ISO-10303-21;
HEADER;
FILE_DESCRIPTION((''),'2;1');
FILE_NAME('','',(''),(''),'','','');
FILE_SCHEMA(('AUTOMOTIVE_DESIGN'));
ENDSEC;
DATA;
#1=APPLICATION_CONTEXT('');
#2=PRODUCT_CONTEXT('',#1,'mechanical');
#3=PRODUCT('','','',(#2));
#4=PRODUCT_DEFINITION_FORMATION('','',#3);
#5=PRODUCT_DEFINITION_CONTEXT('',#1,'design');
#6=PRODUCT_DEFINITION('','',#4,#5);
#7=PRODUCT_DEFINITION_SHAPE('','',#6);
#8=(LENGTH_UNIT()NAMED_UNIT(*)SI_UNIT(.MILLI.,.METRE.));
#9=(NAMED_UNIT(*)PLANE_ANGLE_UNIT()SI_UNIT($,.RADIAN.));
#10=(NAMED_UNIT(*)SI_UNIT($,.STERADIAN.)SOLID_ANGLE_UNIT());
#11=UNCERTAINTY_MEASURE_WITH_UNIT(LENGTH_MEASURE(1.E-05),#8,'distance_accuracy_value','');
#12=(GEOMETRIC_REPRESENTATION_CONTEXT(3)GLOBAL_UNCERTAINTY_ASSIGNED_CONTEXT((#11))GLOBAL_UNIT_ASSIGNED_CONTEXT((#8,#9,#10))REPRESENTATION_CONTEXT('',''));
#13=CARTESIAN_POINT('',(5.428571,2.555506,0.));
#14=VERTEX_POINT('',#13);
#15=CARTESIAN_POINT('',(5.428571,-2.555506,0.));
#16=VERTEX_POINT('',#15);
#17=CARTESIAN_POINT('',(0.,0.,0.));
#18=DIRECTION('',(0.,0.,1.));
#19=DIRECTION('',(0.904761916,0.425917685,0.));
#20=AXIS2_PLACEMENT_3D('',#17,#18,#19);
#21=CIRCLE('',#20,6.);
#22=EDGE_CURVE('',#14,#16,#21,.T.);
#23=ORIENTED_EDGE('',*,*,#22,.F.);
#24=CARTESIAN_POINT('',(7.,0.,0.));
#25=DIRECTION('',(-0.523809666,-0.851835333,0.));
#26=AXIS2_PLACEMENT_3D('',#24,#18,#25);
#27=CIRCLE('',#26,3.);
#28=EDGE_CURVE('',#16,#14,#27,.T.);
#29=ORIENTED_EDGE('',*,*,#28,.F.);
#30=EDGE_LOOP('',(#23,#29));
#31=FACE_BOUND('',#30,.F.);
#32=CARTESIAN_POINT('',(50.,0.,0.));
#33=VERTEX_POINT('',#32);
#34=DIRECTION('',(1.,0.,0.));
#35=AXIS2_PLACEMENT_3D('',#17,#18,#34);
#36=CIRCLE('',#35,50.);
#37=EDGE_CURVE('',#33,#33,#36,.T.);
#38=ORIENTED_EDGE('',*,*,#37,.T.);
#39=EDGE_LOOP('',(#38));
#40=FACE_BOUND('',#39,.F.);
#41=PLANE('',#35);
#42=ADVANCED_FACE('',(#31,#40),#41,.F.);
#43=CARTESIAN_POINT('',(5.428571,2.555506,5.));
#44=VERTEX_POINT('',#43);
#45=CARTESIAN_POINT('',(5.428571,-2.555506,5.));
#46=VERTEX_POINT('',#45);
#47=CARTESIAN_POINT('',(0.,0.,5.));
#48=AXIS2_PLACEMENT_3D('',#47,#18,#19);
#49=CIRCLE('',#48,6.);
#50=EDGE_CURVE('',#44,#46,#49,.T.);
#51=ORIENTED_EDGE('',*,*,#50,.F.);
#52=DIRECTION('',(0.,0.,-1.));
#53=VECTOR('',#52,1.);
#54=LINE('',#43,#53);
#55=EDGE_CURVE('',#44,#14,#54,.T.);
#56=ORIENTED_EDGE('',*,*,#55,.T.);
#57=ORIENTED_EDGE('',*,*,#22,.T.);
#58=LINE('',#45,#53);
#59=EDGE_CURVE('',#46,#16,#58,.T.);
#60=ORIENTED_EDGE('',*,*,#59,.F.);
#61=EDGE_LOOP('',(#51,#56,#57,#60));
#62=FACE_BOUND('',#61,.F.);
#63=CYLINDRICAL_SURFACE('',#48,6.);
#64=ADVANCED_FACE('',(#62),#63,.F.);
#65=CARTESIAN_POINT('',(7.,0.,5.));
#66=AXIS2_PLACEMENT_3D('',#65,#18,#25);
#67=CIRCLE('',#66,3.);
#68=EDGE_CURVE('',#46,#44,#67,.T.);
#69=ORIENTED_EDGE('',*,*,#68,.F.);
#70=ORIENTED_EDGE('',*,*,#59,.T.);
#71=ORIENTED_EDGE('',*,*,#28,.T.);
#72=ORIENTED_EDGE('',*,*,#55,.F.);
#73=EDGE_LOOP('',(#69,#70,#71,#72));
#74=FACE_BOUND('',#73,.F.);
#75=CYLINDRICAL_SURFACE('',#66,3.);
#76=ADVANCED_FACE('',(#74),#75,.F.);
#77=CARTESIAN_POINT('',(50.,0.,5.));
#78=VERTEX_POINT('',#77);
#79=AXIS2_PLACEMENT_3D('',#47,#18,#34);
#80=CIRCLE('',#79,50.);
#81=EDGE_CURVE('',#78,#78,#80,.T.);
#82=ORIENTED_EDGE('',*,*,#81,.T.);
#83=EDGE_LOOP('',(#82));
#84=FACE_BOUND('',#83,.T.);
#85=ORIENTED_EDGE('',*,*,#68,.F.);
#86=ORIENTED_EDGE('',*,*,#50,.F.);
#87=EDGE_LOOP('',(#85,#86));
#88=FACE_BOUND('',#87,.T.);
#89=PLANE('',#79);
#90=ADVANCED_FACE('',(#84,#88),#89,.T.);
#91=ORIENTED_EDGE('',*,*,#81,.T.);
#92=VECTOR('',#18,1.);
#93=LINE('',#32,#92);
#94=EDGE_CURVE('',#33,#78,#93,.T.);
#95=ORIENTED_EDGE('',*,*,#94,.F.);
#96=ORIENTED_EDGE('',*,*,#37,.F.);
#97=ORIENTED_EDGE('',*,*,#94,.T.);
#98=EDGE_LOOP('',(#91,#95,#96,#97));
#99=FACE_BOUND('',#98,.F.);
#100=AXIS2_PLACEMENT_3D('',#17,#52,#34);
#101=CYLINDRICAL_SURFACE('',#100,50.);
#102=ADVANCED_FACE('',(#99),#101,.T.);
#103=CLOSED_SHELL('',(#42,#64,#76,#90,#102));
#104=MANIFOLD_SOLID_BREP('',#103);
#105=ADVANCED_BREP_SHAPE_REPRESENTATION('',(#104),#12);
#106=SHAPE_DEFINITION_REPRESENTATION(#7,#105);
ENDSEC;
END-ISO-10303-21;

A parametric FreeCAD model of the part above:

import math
import FreeCAD as App
import Part
import Sketcher
from FreeCAD import Vector
Q = App.Units.Quantity

doc = App.newDocument("Part")
body = doc.addObject("PartDesign::Body", "Body")

sketch1 = doc.addObject("Sketcher::SketchObject", "Sketch")
body.addObject(sketch1)
sketch1.AttachmentSupport = (doc.XY_Plane, [""])
sketch1.MapMode = "FlatFace"
sketch1.addGeometry(Part.Circle(Vector(0, 0, 0), Vector(0, 0, 1), 50), False)
sketch1.addConstraint([
    Sketcher.Constraint("Coincident", 0, 3, -1, 1),
    Sketcher.Constraint("Diameter", 0, Q("100 mm")),
])
pad1 = doc.addObject("PartDesign::Pad", "Pad")
body.addObject(pad1)
pad1.Profile = sketch1
pad1.Length = 5

sketch2 = doc.addObject("Sketcher::SketchObject", "Sketch001")
body.addObject(sketch2)
sketch2.AttachmentSupport = (doc.XY_Plane, [""])
sketch2.MapMode = "FlatFace"
sketch2.AttachmentOffset = App.Placement(Vector(0, 0, 5), App.Rotation())
sketch2.addGeometry([
    Part.ArcOfCircle(Part.Circle(Vector(7, 0, 0), Vector(0, 0, 1), 3), math.radians(-122), math.radians(122)),
    Part.ArcOfCircle(Part.Circle(Vector(0, 0, 0), Vector(0, 0, 1), 6), math.radians(25), math.radians(335)),
], False)
sketch2.addConstraint([
    Sketcher.Constraint("Coincident", 0, 1, 1, 2),
    Sketcher.Constraint("Coincident", 1, 1, 0, 2),
    Sketcher.Constraint("Coincident", 1, 3, -1, 1),
    Sketcher.Constraint("PointOnObject", 0, 3, -1),
    Sketcher.Constraint("Radius", 0, Q("3 mm")),
    Sketcher.Constraint("Radius", 1, Q("6 mm")),
    Sketcher.Constraint("DistanceX", -1, 1, 0, 3, Q("7 mm")),
])
pocket1 = doc.addObject("PartDesign::Pocket", "Pocket")
body.addObject(pocket1)
pocket1.Profile = sketch2
pocket1.Type = "ThroughAll"

doc.recompute()
